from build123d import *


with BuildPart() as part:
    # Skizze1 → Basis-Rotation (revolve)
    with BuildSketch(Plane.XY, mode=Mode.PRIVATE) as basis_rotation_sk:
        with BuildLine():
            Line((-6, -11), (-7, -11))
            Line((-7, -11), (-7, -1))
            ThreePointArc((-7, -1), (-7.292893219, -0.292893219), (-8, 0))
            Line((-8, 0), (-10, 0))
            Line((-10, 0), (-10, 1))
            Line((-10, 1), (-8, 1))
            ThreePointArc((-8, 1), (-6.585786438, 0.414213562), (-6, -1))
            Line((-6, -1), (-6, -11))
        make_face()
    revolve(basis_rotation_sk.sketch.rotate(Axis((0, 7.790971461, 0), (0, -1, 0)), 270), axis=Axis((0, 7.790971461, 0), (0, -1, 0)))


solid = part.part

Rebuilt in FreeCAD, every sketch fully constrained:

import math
import FreeCAD as App
import Part
import Sketcher

doc = App.newDocument("Part")
body = doc.addObject("PartDesign::Body", "Body")

# Sketch on XY plane
sketch1 = body.newObject("Sketcher::SketchObject", "Sketch")
sketch1.AttachmentSupport = (doc.getObject("XY_Plane"), [""])
sketch1.MapMode = "FlatFace"
sketch1.addGeometry([
    Part.LineSegment(App.Vector(-7, -11, 0), App.Vector(-6, -11, 0)),  # 0
    Part.LineSegment(App.Vector(-6, -11, 0), App.Vector(-6, -1, 0)),  # 1
    Part.ArcOfCircle(Part.Circle(App.Vector(-8, -1, 0), App.Vector(0, 0, 1), 2), math.radians(0), math.radians(90)),  # 2
    Part.LineSegment(App.Vector(-8, 1, 0), App.Vector(-10, 1, 0)),  # 3
    Part.LineSegment(App.Vector(-10, 1, 0), App.Vector(-10, 0, 0)),  # 4
    Part.LineSegment(App.Vector(-10, 0, 0), App.Vector(-8, 0, 0)),  # 5
    Part.ArcOfCircle(Part.Circle(App.Vector(-8, -1, 0), App.Vector(0, 0, 1), 1), math.radians(0), math.radians(90)),  # 6
    Part.LineSegment(App.Vector(-7, -1, 0), App.Vector(-7, -11, 0)),  # 7
], False)
sketch1.addConstraint([
    Sketcher.Constraint("Coincident", 0, 2, 1, 1),
    Sketcher.Constraint("Tangent", 1, 2, 2, 1),
    Sketcher.Constraint("Tangent", 2, 2, 3, 1),
    Sketcher.Constraint("Coincident", 3, 2, 4, 1),
    Sketcher.Constraint("Coincident", 4, 2, 5, 1),
    Sketcher.Constraint("Tangent", 5, 2, 6, 2),
    Sketcher.Constraint("Tangent", 6, 1, 7, 1),
    Sketcher.Constraint("Coincident", 7, 2, 0, 1),
    Sketcher.Constraint("Horizontal", 0),
    Sketcher.Constraint("Vertical", 1),
    Sketcher.Constraint("Horizontal", 3),
    Sketcher.Constraint("Vertical", 4),
    Sketcher.Constraint("Horizontal", 5),
    Sketcher.Constraint("Vertical", 7),
    Sketcher.Constraint("Coincident", 6, 3, 2, 3),
    Sketcher.Constraint("PointOnObject", 4, 2, -1),
    Sketcher.Constraint("Radius", 2, 2.0),
    Sketcher.Constraint("Radius", 6, 1.0),
    Sketcher.Constraint("DistanceX", 3, 2, 3, 1, 2.0),
    Sketcher.Constraint("DistanceY", 1, 1, 1, 2, 10.0),
    Sketcher.Constraint("DistanceX", 2, 3, -1, 1, 8.0),
])
revolution = body.newObject("PartDesign::Revolution", "Revolution")
revolution.Profile = sketch1
revolution.ReferenceAxis = (sketch1, ["V_Axis"])
revolution.Angle = 360

doc.recompute()
